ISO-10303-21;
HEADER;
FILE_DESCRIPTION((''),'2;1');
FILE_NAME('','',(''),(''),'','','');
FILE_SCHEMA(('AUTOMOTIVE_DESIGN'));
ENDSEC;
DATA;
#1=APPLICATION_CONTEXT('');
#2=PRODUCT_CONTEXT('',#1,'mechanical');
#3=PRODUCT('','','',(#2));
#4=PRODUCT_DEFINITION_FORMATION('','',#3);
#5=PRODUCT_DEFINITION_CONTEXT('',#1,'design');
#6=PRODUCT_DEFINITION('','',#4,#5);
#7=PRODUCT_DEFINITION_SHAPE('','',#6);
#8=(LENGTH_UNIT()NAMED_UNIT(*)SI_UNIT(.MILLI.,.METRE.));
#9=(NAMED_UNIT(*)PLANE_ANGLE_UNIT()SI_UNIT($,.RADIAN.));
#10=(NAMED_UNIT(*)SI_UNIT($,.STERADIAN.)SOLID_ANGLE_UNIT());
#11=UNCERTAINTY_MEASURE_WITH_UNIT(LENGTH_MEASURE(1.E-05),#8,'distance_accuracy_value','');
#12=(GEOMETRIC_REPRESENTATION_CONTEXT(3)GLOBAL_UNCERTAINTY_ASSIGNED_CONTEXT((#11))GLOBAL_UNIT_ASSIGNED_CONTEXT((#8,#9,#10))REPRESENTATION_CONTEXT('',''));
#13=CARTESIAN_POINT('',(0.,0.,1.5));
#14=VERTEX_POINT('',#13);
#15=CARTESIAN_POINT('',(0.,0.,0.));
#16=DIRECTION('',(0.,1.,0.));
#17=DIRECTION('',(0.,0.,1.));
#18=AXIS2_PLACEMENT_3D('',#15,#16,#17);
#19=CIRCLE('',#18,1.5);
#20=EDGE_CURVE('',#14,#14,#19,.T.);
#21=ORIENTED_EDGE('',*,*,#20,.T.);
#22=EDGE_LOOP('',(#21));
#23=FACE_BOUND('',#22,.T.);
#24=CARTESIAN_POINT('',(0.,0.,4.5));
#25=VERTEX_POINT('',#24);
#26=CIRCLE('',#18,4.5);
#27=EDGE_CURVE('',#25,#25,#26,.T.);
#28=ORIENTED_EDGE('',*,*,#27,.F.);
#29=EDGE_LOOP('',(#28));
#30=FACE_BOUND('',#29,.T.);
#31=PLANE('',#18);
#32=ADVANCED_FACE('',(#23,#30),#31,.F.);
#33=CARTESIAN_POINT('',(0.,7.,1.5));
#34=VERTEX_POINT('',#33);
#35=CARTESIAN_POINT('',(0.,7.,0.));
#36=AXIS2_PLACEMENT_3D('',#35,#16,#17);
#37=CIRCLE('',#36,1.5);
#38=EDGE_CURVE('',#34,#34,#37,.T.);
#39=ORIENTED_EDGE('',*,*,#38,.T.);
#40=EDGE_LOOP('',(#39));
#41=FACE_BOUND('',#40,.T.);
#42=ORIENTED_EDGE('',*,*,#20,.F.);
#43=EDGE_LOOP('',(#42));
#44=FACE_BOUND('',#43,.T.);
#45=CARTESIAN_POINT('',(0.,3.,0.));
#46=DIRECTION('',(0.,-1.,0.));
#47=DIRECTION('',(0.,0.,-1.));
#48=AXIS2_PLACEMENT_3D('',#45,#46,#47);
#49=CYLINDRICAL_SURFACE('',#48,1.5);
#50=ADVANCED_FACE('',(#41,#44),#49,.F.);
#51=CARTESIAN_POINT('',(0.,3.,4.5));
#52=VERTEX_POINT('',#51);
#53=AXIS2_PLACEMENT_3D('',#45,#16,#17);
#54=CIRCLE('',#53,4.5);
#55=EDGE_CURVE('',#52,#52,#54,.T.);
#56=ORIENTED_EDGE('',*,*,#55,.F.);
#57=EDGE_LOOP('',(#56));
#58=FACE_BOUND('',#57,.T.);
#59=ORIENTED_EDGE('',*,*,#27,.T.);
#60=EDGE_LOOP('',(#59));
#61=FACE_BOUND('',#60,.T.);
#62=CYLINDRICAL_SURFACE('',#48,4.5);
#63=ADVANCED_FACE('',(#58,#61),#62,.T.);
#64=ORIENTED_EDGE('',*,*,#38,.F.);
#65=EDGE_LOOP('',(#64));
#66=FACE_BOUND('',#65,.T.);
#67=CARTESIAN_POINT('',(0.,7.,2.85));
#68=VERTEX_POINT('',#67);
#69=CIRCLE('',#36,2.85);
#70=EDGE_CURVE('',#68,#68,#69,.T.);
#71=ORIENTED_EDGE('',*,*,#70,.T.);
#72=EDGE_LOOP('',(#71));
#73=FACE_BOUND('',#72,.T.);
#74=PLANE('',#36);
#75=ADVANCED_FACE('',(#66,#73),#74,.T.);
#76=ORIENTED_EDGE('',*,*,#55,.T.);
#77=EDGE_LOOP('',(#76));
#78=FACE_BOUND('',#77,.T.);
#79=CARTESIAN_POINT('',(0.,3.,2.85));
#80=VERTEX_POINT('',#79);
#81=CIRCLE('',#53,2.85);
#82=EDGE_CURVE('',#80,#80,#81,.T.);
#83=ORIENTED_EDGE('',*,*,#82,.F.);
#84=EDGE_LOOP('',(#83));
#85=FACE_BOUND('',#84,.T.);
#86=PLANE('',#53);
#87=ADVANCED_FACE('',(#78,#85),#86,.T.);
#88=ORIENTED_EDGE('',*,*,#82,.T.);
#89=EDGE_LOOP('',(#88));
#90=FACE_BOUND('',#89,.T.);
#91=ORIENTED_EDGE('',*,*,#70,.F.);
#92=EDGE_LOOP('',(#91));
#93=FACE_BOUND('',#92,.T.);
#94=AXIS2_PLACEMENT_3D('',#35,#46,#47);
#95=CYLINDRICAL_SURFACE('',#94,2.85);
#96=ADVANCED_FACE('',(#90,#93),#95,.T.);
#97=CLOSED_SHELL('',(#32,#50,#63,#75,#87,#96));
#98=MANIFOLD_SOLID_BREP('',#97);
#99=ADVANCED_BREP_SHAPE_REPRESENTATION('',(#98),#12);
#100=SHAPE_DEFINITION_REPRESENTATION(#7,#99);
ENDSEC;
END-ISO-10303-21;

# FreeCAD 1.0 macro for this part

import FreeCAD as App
import Part
import Sketcher

doc = App.newDocument("Part")
body = doc.addObject("PartDesign::Body", "Body")

# Sketch on XZ plane
sketch1 = body.newObject("Sketcher::SketchObject", "Sketch")
sketch1.AttachmentSupport = (doc.getObject("XZ_Plane"), [""])
sketch1.MapMode = "FlatFace"
sketch1.addGeometry(Part.Circle(App.Vector(0, 0, 0), App.Vector(0, 0, 1), 4.5), False)
sketch1.addGeometry(Part.Circle(App.Vector(0, 0, 0), App.Vector(0, 0, 1), 1.5), False)
sketch1.addConstraint(Sketcher.Constraint("Coincident", 0, 3, -1, 1))
sketch1.addConstraint(Sketcher.Constraint("Coincident", 1, 3, -1, 1))
sketch1.addConstraint(Sketcher.Constraint("Diameter", 0, 9.0))
sketch1.addConstraint(Sketcher.Constraint("Diameter", 1, 3.0))
pad1 = body.newObject("PartDesign::Pad", "Pad")
pad1.Profile = sketch1
pad1.Length = 3
pad1.Reversed = True

# Sketch on XZ plane
sketch2 = body.newObject("Sketcher::SketchObject", "Sketch001")
sketch2.AttachmentSupport = (doc.getObject("XZ_Plane"), [""])
sketch2.MapMode = "FlatFace"
sketch2.AttachmentOffset = App.Placement(App.Vector(0, 0, -3), App.Rotation())
sketch2.addGeometry(Part.Circle(App.Vector(0, 0, 0), App.Vector(0, 0, 1), 2.9), False)
sketch2.addGeometry(Part.Circle(App.Vector(0, 0, 0), App.Vector(0, 0, 1), 1.5), False)
sketch2.addConstraint(Sketcher.Constraint("Coincident", 0, 3, -1, 1))
sketch2.addConstraint(Sketcher.Constraint("Coincident", 1, 3, -1, 1))
sketch2.addConstraint(Sketcher.Constraint("Diameter", 1, 3.0))
sketch2.addConstraint(Sketcher.Constraint("Diameter", 0, 5.7))
pad2 = body.newObject("PartDesign::Pad", "Pad001")
pad2.Profile = sketch2
pad2.Length = 4
pad2.Reversed = True

doc.recompute()
